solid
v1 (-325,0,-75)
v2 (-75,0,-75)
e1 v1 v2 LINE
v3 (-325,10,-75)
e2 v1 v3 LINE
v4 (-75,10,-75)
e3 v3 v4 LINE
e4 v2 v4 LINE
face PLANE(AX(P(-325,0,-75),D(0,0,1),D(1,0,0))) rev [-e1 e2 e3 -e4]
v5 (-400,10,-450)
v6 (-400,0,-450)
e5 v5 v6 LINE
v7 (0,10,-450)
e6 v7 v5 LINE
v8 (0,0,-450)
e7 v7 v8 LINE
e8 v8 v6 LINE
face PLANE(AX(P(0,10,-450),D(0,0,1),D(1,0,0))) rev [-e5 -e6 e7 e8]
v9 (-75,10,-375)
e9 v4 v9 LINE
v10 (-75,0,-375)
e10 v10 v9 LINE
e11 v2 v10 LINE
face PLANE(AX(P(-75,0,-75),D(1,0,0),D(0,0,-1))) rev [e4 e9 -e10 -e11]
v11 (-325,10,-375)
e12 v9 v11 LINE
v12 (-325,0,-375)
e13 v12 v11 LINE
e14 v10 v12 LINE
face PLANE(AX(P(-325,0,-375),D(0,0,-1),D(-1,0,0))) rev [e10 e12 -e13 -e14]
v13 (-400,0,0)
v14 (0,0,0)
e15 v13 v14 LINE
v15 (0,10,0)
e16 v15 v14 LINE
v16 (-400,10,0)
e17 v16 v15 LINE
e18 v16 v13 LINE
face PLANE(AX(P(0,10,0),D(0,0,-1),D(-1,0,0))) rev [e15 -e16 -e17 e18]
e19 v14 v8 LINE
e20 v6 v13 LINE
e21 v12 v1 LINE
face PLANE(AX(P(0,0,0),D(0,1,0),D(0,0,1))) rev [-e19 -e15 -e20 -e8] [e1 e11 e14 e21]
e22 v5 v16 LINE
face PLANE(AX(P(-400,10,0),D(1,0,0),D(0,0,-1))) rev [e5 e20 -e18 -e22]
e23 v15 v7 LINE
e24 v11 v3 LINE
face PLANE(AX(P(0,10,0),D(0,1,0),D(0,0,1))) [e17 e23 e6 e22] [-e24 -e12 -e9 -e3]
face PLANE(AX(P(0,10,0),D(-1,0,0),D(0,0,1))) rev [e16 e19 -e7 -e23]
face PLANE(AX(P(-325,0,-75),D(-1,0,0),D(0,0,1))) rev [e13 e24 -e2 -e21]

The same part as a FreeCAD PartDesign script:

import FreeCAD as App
import Part
import Sketcher

V = App.Vector

doc = App.newDocument("Part")
body = doc.addObject("PartDesign::Body", "Body")

# Sketch on XZ plane
sketch1 = doc.addObject("Sketcher::SketchObject", "Sketch")
body.addObject(sketch1)
sketch1.AttachmentSupport = (doc.XZ_Plane, [""])
sketch1.MapMode = "FlatFace"
sketch1.addGeometry(Part.LineSegment(V(-400, -450, 0), V(-400, 0, 0)), False)
sketch1.addGeometry(Part.LineSegment(V(-400, 0, 0), V(0, 0, 0)), False)
sketch1.addGeometry(Part.LineSegment(V(0, 0, 0), V(0, -450, 0)), False)
sketch1.addGeometry(Part.LineSegment(V(0, -450, 0), V(-400, -450, 0)), False)
sketch1.addConstraint(Sketcher.Constraint("Coincident", 0, 2, 1, 1))
sketch1.addConstraint(Sketcher.Constraint("Coincident", 1, 2, 2, 1))
sketch1.addConstraint(Sketcher.Constraint("Coincident", 2, 2, 3, 1))
sketch1.addConstraint(Sketcher.Constraint("Coincident", 3, 2, 0, 1))
sketch1.addConstraint(Sketcher.Constraint("Vertical", 0))
sketch1.addConstraint(Sketcher.Constraint("Horizontal", 1))
sketch1.addConstraint(Sketcher.Constraint("Vertical", 2))
sketch1.addConstraint(Sketcher.Constraint("Horizontal", 3))
sketch1.addConstraint(Sketcher.Constraint("Coincident", 1, 2, -1, 1))
sketch1.addConstraint(Sketcher.Constraint("DistanceX", 1, 1, 1, 2, 400.0))
sketch1.addConstraint(Sketcher.Constraint("DistanceY", 0, 1, 0, 2, 450.0))
pad1 = doc.addObject("PartDesign::Pad", "Pad")
body.addObject(pad1)
pad1.Profile = sketch1
pad1.Length = 10
pad1.Reversed = True

# Sketch on XZ plane
sketch2 = doc.addObject("Sketcher::SketchObject", "Sketch001")
body.addObject(sketch2)
sketch2.AttachmentSupport = (doc.XZ_Plane, [""])
sketch2.MapMode = "FlatFace"
sketch2.AttachmentOffset = App.Placement(V(0, 0, -10), App.Rotation())
sketch2.addGeometry(Part.LineSegment(V(-325, -375, 0), V(-325, -75, 0)), False)
sketch2.addGeometry(Part.LineSegment(V(-325, -75, 0), V(-75, -75, 0)), False)
sketch2.addGeometry(Part.LineSegment(V(-75, -75, 0), V(-75, -375, 0)), False)
sketch2.addGeometry(Part.LineSegment(V(-75, -375, 0), V(-325, -375, 0)), False)
sketch2.addConstraint(Sketcher.Constraint("Coincident", 0, 2, 1, 1))
sketch2.addConstraint(Sketcher.Constraint("Coincident", 1, 2, 2, 1))
sketch2.addConstraint(Sketcher.Constraint("Coincident", 2, 2, 3, 1))
sketch2.addConstraint(Sketcher.Constraint("Coincident", 3, 2, 0, 1))
sketch2.addConstraint(Sketcher.Constraint("Vertical", 0))
sketch2.addConstraint(Sketcher.Constraint("Horizontal", 1))
sketch2.addConstraint(Sketcher.Constraint("Vertical", 2))
sketch2.addConstraint(Sketcher.Constraint("Horizontal", 3))
sketch2.addConstraint(Sketcher.Constraint("DistanceX", 1, 1, 1, 2, 250.0))
sketch2.addConstraint(Sketcher.Constraint("DistanceY", 0, 1, 0, 2, 300.0))
sketch2.addConstraint(Sketcher.Constraint("DistanceX", 0, 2, -1, 1, 325.0))
sketch2.addConstraint(Sketcher.Constraint("DistanceY", 0, 2, -1, 1, 75.0))
pocket1 = doc.addObject("PartDesign::Pocket", "Pocket")
body.addObject(pocket1)
pocket1.Profile = sketch2
pocket1.Length = 10
pocket1.Reversed = True

doc.recompute()
